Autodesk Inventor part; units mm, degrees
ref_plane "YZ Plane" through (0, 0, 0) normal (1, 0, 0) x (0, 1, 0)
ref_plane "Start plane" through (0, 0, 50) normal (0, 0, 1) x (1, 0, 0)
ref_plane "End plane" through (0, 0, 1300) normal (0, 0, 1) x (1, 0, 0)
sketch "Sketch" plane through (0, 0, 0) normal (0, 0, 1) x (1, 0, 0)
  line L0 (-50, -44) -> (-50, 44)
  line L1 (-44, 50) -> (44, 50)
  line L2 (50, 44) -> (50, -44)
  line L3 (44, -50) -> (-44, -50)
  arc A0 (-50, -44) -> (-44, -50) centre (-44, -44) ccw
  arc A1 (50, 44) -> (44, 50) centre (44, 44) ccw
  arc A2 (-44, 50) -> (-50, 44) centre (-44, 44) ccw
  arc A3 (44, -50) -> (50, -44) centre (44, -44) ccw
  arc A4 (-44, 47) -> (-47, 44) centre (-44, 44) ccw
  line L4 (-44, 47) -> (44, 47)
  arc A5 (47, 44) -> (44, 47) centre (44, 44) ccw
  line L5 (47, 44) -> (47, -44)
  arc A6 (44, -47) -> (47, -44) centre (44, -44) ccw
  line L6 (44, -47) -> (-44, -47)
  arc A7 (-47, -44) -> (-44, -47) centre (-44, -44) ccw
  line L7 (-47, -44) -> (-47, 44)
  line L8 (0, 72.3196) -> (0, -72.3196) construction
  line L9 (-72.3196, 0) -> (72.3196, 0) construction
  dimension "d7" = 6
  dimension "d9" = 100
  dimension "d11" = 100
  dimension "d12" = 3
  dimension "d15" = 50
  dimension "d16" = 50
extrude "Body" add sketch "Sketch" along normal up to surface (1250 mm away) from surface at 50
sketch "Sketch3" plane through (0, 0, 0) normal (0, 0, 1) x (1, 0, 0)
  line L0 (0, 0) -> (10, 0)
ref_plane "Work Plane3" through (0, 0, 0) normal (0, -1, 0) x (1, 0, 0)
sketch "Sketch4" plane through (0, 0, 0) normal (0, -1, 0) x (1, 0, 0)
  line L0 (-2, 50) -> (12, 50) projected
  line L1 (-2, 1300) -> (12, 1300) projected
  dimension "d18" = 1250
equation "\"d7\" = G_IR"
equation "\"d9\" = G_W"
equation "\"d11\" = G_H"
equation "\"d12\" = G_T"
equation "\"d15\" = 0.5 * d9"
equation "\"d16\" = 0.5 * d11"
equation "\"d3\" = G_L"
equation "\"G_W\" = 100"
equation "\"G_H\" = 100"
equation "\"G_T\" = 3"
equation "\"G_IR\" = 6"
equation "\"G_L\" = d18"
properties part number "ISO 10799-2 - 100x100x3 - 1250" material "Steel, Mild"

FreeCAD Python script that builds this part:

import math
import FreeCAD as App
import Part
import Sketcher
Q = App.Units.Quantity

doc = App.newDocument("Part")
body = doc.addObject("PartDesign::Body", "Body")

# Sketch on XY plane
sketch1 = body.newObject("Sketcher::SketchObject", "Sketch")
sketch1.AttachmentSupport = (doc.getObject("XY_Plane"), [""])
sketch1.MapMode = "FlatFace"
sketch1.AttachmentOffset = App.Placement(App.Vector(0, 0, 50), App.Rotation())
sketch1.addGeometry(Part.LineSegment(App.Vector(-50, 44, 0), App.Vector(-50, -44, 0)), False)
sketch1.addGeometry(Part.ArcOfCircle(Part.Circle(App.Vector(-44, -44, 0), App.Vector(0, 0, 1), 6), math.radians(180), math.radians(270)), False)
sketch1.addGeometry(Part.LineSegment(App.Vector(-44, -50, 0), App.Vector(44, -50, 0)), False)
sketch1.addGeometry(Part.ArcOfCircle(Part.Circle(App.Vector(44, -44, 0), App.Vector(0, 0, 1), 6), math.radians(-90), math.radians(0)), False)
sketch1.addGeometry(Part.LineSegment(App.Vector(50, -44, 0), App.Vector(50, 44, 0)), False)
sketch1.addGeometry(Part.ArcOfCircle(Part.Circle(App.Vector(44, 44, 0), App.Vector(0, 0, 1), 6), math.radians(0), math.radians(90)), False)
sketch1.addGeometry(Part.LineSegment(App.Vector(44, 50, 0), App.Vector(-44, 50, 0)), False)
sketch1.addGeometry(Part.ArcOfCircle(Part.Circle(App.Vector(-44, 44, 0), App.Vector(0, 0, 1), 6), math.radians(90), math.radians(180)), False)
sketch1.addGeometry(Part.ArcOfCircle(Part.Circle(App.Vector(-44, 44, 0), App.Vector(0, 0, 1), 3), math.radians(90), math.radians(180)), False)
sketch1.addGeometry(Part.LineSegment(App.Vector(-44, 47, 0), App.Vector(44, 47, 0)), False)
sketch1.addGeometry(Part.ArcOfCircle(Part.Circle(App.Vector(44, 44, 0), App.Vector(0, 0, 1), 3), math.radians(0), math.radians(90)), False)
sketch1.addGeometry(Part.LineSegment(App.Vector(47, 44, 0), App.Vector(47, -44, 0)), False)
sketch1.addGeometry(Part.ArcOfCircle(Part.Circle(App.Vector(44, -44, 0), App.Vector(0, 0, 1), 3), math.radians(-90), math.radians(0)), False)
sketch1.addGeometry(Part.LineSegment(App.Vector(44, -47, 0), App.Vector(-44, -47, 0)), False)
sketch1.addGeometry(Part.ArcOfCircle(Part.Circle(App.Vector(-44, -44, 0), App.Vector(0, 0, 1), 3), math.radians(180), math.radians(270)), False)
sketch1.addGeometry(Part.LineSegment(App.Vector(-47, -44, 0), App.Vector(-47, 44, 0)), False)
sketch1.addConstraint(Sketcher.Constraint("Tangent", 0, 2, 1, 1))
sketch1.addConstraint(Sketcher.Constraint("Tangent", 1, 2, 2, 1))
sketch1.addConstraint(Sketcher.Constraint("Tangent", 2, 2, 3, 1))
sketch1.addConstraint(Sketcher.Constraint("Tangent", 3, 2, 4, 1))
sketch1.addConstraint(Sketcher.Constraint("Tangent", 4, 2, 5, 1))
sketch1.addConstraint(Sketcher.Constraint("Tangent", 5, 2, 6, 1))
sketch1.addConstraint(Sketcher.Constraint("Tangent", 6, 2, 7, 1))
sketch1.addConstraint(Sketcher.Constraint("Tangent", 7, 2, 0, 1))
sketch1.addConstraint(Sketcher.Constraint("Tangent", 8, 1, 9, 1))
sketch1.addConstraint(Sketcher.Constraint("Tangent", 9, 2, 10, 2))
sketch1.addConstraint(Sketcher.Constraint("Tangent", 10, 1, 11, 1))
sketch1.addConstraint(Sketcher.Constraint("Tangent", 11, 2, 12, 2))
sketch1.addConstraint(Sketcher.Constraint("Tangent", 12, 1, 13, 1))
sketch1.addConstraint(Sketcher.Constraint("Tangent", 13, 2, 14, 2))
sketch1.addConstraint(Sketcher.Constraint("Tangent", 14, 1, 15, 1))
sketch1.addConstraint(Sketcher.Constraint("Tangent", 15, 2, 8, 2))
sketch1.addConstraint(Sketcher.Constraint("Vertical", 0))
sketch1.addConstraint(Sketcher.Constraint("Horizontal", 2))
sketch1.addConstraint(Sketcher.Constraint("Vertical", 4))
sketch1.addConstraint(Sketcher.Constraint("Horizontal", 6))
sketch1.addConstraint(Sketcher.Constraint("Horizontal", 9))
sketch1.addConstraint(Sketcher.Constraint("Vertical", 11))
sketch1.addConstraint(Sketcher.Constraint("Horizontal", 13))
sketch1.addConstraint(Sketcher.Constraint("Vertical", 15))
sketch1.addConstraint(Sketcher.Constraint("Coincident", 8, 3, 7, 3))
sketch1.addConstraint(Sketcher.Constraint("Coincident", 10, 3, 5, 3))
sketch1.addConstraint(Sketcher.Constraint("Coincident", 12, 3, 3, 3))
sketch1.addConstraint(Sketcher.Constraint("Equal", 1, 3))
sketch1.addConstraint(Sketcher.Constraint("Equal", 3, 5))
sketch1.addConstraint(Sketcher.Constraint("Equal", 5, 7))
sketch1.addConstraint(Sketcher.Constraint("Equal", 12, 14))
sketch1.addConstraint(Sketcher.Constraint("Symmetric", 1, 3, 5, 3, -1, 1))
sketch1.addConstraint(Sketcher.Constraint("Equal", 13, 0))
sketch1.addConstraint(Sketcher.Constraint("Radius", 1, Q("6 mm")))
sketch1.addConstraint(Sketcher.Constraint("Radius", 8, Q("3 mm")))
sketch1.addConstraint(Sketcher.Constraint("DistanceX", 0, 2, -1, 1, Q("50 mm")))
pad1 = body.newObject("PartDesign::Pad", "Pad")
pad1.Profile = sketch1
pad1.Length = 1250

doc.recompute()
